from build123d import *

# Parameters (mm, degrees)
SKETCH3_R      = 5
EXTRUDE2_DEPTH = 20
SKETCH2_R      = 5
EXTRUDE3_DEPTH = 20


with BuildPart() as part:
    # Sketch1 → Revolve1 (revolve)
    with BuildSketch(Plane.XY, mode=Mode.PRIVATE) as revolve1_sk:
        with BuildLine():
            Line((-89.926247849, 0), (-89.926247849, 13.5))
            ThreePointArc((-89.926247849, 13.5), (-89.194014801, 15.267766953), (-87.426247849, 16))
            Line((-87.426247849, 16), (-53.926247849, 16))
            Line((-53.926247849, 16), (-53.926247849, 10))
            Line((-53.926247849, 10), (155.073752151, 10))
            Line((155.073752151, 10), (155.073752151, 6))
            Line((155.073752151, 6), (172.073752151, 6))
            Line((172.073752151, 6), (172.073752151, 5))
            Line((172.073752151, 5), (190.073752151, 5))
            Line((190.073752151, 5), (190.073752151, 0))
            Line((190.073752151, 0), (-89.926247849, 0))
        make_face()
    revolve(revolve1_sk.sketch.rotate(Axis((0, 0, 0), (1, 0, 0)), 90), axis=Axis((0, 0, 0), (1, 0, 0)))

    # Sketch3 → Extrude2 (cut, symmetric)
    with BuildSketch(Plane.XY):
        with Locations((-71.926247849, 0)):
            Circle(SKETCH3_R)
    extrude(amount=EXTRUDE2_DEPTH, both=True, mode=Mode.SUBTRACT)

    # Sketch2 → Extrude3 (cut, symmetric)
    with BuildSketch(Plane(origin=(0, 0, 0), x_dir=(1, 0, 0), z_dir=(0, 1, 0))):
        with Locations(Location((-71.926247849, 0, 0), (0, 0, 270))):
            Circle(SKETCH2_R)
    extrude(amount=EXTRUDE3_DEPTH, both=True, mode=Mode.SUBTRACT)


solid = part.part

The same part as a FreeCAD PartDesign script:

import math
import FreeCAD as App
import Part
import Sketcher
from FreeCAD import Vector
Q = App.Units.Quantity

doc = App.newDocument("Part")
body = doc.addObject("PartDesign::Body", "Body")

# Sketch on XY plane
sketch1 = body.newObject("Sketcher::SketchObject", "Sketch")
sketch1.AttachmentSupport = (doc.getObject("XY_Plane"), [""])
sketch1.MapMode = "FlatFace"
sketch1.addGeometry([
    Part.LineSegment(Vector(-89.926248, 13.5, 0), Vector(-89.926248, 0, 0)),  # 0
    Part.LineSegment(Vector(-89.926248, 0, 0), Vector(190.073752, 0, 0)),  # 1
    Part.LineSegment(Vector(190.073752, 0, 0), Vector(190.073752, 5, 0)),  # 2
    Part.LineSegment(Vector(190.073752, 5, 0), Vector(172.073752, 5, 0)),  # 3
    Part.LineSegment(Vector(172.073752, 5, 0), Vector(172.073752, 6, 0)),  # 4
    Part.LineSegment(Vector(172.073752, 6, 0), Vector(155.073752, 6, 0)),  # 5
    Part.LineSegment(Vector(155.073752, 6, 0), Vector(155.073752, 10, 0)),  # 6
    Part.LineSegment(Vector(155.073752, 10, 0), Vector(-53.926248, 10, 0)),  # 7
    Part.LineSegment(Vector(-53.926248, 10, 0), Vector(-53.926248, 16, 0)),  # 8
    Part.LineSegment(Vector(-53.926248, 16, 0), Vector(-87.426248, 16, 0)),  # 9
    Part.ArcOfCircle(Part.Circle(Vector(-87.426248, 13.5, 0), Vector(0, 0, 1), 2.5), math.radians(90), math.radians(180)),  # 10
], False)
sketch1.addConstraint([
    Sketcher.Constraint("Coincident", 0, 2, 1, 1),
    Sketcher.Constraint("Coincident", 1, 2, 2, 1),
    Sketcher.Constraint("Coincident", 2, 2, 3, 1),
    Sketcher.Constraint("Coincident", 3, 2, 4, 1),
    Sketcher.Constraint("Coincident", 4, 2, 5, 1),
    Sketcher.Constraint("Coincident", 5, 2, 6, 1),
    Sketcher.Constraint("Coincident", 6, 2, 7, 1),
    Sketcher.Constraint("Coincident", 7, 2, 8, 1),
    Sketcher.Constraint("Coincident", 8, 2, 9, 1),
    Sketcher.Constraint("Tangent", 9, 2, 10, 1),
    Sketcher.Constraint("Tangent", 10, 2, 0, 1),
    Sketcher.Constraint("Vertical", 0),
    Sketcher.Constraint("Horizontal", 1),
    Sketcher.Constraint("Vertical", 2),
    Sketcher.Constraint("Horizontal", 3),
    Sketcher.Constraint("Vertical", 4),
    Sketcher.Constraint("Horizontal", 5),
    Sketcher.Constraint("Vertical", 6),
    Sketcher.Constraint("Horizontal", 7),
    Sketcher.Constraint("Vertical", 8),
    Sketcher.Constraint("Horizontal", 9),
    Sketcher.Constraint("PointOnObject", 0, 2, -1),
    Sketcher.Constraint("Radius", 10, Q("2.5 mm")),
    Sketcher.Constraint("DistanceX", 1, 1, 1, 2, Q("280 mm")),
    Sketcher.Constraint("DistanceX", 3, 2, 3, 1, Q("18 mm")),
    Sketcher.Constraint("DistanceX", 5, 2, 5, 1, Q("17 mm")),
    Sketcher.Constraint("DistanceX", 7, 2, 7, 1, Q("209 mm")),
    Sketcher.Constraint("DistanceY", 2, 1, 2, 2, Q("5 mm")),
    Sketcher.Constraint("DistanceY", 4, 1, 4, 2, Q("1 mm")),
    Sketcher.Constraint("DistanceY", 6, 1, 6, 2, Q("4 mm")),
    Sketcher.Constraint("DistanceY", 8, 1, 8, 2, Q("6 mm")),
    Sketcher.Constraint("DistanceX", 10, 3, -1, 1, Q("87.426248 mm")),
])
revolution = body.newObject("PartDesign::Revolution", "Revolution")
revolution.Profile = sketch1
revolution.ReferenceAxis = (sketch1, ["H_Axis"])
revolution.Angle = 360

# Sketch on XY plane
sketch2 = body.newObject("Sketcher::SketchObject", "Sketch001")
sketch2.AttachmentSupport = (doc.getObject("XY_Plane"), [""])
sketch2.MapMode = "FlatFace"
sketch2.addGeometry(Part.Circle(Vector(-71.926248, 0, 0), Vector(0, 0, 1), 5), False)
sketch2.addConstraint([
    Sketcher.Constraint("PointOnObject", 0, 3, -1),
    Sketcher.Constraint("Diameter", 0, Q("10 mm")),
    Sketcher.Constraint("DistanceX", 0, 3, -1, 1, Q("71.926248 mm")),
])
pocket1 = body.newObject("PartDesign::Pocket", "Pocket")
pocket1.Profile = sketch2
pocket1.Length = 40
pocket1.Midplane = True

# Sketch on XZ plane
sketch3 = body.newObject("Sketcher::SketchObject", "Sketch002")
sketch3.AttachmentSupport = (doc.getObject("XZ_Plane"), [""])
sketch3.MapMode = "FlatFace"
sketch3.addGeometry(Part.Circle(Vector(-71.926248, 0, 0), Vector(0, 0, 1), 5), False)
sketch3.addConstraint([
    Sketcher.Constraint("PointOnObject", 0, 3, -1),
    Sketcher.Constraint("Diameter", 0, Q("10 mm")),
    Sketcher.Constraint("DistanceX", 0, 3, -1, 1, Q("71.926248 mm")),
])
pocket2 = body.newObject("PartDesign::Pocket", "Pocket001")
pocket2.Profile = sketch3
pocket2.Length = 40
pocket2.Midplane = True

doc.recompute()
